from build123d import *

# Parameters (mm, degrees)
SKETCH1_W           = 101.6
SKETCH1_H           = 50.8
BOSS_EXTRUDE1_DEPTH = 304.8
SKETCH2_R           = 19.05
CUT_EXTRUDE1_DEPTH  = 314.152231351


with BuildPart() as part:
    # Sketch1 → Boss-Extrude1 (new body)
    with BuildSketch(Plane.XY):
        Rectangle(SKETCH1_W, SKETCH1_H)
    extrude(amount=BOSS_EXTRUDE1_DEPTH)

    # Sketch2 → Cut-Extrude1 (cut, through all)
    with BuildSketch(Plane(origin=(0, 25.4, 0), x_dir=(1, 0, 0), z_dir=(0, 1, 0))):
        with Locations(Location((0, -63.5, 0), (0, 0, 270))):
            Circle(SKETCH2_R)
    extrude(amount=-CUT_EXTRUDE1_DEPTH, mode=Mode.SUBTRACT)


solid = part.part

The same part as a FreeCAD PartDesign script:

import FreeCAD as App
import Part
import Sketcher
from FreeCAD import Vector
Q = App.Units.Quantity

doc = App.newDocument("Part")
body = doc.addObject("PartDesign::Body", "Body")

# Sketch on XY plane
sketch1 = body.newObject("Sketcher::SketchObject", "Sketch")
sketch1.AttachmentSupport = (doc.getObject("XY_Plane"), [""])
sketch1.MapMode = "FlatFace"
sketch1.addGeometry([
    Part.LineSegment(Vector(-50.8, 25.4, 0), Vector(-50.8, -25.4, 0)),
    Part.LineSegment(Vector(-50.8, -25.4, 0), Vector(50.8, -25.4, 0)),
    Part.LineSegment(Vector(50.8, -25.4, 0), Vector(50.8, 25.4, 0)),
    Part.LineSegment(Vector(50.8, 25.4, 0), Vector(-50.8, 25.4, 0)),
], False)
sketch1.addConstraint([
    Sketcher.Constraint("Coincident", 0, 2, 1, 1),
    Sketcher.Constraint("Coincident", 1, 2, 2, 1),
    Sketcher.Constraint("Coincident", 2, 2, 3, 1),
    Sketcher.Constraint("Coincident", 3, 2, 0, 1),
    Sketcher.Constraint("Vertical", 0),
    Sketcher.Constraint("Horizontal", 1),
    Sketcher.Constraint("Vertical", 2),
    Sketcher.Constraint("Horizontal", 3),
    Sketcher.Constraint("Symmetric", 0, 2, 2, 2, -1, 1),
    Sketcher.Constraint("DistanceX", 1, 1, 1, 2, Q("4 in")),
    Sketcher.Constraint("DistanceY", 0, 2, 0, 1, Q("2 in")),
])
pad1 = body.newObject("PartDesign::Pad", "Pad")
pad1.Profile = sketch1
pad1.Length = Q("12 in")

# Sketch on XZ plane
sketch2 = body.newObject("Sketcher::SketchObject", "Sketch001")
sketch2.AttachmentSupport = (doc.getObject("XZ_Plane"), [""])
sketch2.MapMode = "FlatFace"
sketch2.AttachmentOffset = App.Placement(Vector(0, 0, -1 * 25.4), App.Rotation())
sketch2.addGeometry(Part.Circle(Vector(0, 63.5, 0), Vector(0, 0, 1), 19.05), False)
sketch2.addConstraint([
    Sketcher.Constraint("PointOnObject", 0, 3, -2),
    Sketcher.Constraint("Diameter", 0, Q("1.5 in")),
    Sketcher.Constraint("DistanceY", -1, 1, 0, 3, Q("2.5 in")),
])
pocket1 = body.newObject("PartDesign::Pocket", "Pocket")
pocket1.Profile = sketch2
pocket1.Type = "ThroughAll"
pocket1.Reversed = True

doc.recompute()
